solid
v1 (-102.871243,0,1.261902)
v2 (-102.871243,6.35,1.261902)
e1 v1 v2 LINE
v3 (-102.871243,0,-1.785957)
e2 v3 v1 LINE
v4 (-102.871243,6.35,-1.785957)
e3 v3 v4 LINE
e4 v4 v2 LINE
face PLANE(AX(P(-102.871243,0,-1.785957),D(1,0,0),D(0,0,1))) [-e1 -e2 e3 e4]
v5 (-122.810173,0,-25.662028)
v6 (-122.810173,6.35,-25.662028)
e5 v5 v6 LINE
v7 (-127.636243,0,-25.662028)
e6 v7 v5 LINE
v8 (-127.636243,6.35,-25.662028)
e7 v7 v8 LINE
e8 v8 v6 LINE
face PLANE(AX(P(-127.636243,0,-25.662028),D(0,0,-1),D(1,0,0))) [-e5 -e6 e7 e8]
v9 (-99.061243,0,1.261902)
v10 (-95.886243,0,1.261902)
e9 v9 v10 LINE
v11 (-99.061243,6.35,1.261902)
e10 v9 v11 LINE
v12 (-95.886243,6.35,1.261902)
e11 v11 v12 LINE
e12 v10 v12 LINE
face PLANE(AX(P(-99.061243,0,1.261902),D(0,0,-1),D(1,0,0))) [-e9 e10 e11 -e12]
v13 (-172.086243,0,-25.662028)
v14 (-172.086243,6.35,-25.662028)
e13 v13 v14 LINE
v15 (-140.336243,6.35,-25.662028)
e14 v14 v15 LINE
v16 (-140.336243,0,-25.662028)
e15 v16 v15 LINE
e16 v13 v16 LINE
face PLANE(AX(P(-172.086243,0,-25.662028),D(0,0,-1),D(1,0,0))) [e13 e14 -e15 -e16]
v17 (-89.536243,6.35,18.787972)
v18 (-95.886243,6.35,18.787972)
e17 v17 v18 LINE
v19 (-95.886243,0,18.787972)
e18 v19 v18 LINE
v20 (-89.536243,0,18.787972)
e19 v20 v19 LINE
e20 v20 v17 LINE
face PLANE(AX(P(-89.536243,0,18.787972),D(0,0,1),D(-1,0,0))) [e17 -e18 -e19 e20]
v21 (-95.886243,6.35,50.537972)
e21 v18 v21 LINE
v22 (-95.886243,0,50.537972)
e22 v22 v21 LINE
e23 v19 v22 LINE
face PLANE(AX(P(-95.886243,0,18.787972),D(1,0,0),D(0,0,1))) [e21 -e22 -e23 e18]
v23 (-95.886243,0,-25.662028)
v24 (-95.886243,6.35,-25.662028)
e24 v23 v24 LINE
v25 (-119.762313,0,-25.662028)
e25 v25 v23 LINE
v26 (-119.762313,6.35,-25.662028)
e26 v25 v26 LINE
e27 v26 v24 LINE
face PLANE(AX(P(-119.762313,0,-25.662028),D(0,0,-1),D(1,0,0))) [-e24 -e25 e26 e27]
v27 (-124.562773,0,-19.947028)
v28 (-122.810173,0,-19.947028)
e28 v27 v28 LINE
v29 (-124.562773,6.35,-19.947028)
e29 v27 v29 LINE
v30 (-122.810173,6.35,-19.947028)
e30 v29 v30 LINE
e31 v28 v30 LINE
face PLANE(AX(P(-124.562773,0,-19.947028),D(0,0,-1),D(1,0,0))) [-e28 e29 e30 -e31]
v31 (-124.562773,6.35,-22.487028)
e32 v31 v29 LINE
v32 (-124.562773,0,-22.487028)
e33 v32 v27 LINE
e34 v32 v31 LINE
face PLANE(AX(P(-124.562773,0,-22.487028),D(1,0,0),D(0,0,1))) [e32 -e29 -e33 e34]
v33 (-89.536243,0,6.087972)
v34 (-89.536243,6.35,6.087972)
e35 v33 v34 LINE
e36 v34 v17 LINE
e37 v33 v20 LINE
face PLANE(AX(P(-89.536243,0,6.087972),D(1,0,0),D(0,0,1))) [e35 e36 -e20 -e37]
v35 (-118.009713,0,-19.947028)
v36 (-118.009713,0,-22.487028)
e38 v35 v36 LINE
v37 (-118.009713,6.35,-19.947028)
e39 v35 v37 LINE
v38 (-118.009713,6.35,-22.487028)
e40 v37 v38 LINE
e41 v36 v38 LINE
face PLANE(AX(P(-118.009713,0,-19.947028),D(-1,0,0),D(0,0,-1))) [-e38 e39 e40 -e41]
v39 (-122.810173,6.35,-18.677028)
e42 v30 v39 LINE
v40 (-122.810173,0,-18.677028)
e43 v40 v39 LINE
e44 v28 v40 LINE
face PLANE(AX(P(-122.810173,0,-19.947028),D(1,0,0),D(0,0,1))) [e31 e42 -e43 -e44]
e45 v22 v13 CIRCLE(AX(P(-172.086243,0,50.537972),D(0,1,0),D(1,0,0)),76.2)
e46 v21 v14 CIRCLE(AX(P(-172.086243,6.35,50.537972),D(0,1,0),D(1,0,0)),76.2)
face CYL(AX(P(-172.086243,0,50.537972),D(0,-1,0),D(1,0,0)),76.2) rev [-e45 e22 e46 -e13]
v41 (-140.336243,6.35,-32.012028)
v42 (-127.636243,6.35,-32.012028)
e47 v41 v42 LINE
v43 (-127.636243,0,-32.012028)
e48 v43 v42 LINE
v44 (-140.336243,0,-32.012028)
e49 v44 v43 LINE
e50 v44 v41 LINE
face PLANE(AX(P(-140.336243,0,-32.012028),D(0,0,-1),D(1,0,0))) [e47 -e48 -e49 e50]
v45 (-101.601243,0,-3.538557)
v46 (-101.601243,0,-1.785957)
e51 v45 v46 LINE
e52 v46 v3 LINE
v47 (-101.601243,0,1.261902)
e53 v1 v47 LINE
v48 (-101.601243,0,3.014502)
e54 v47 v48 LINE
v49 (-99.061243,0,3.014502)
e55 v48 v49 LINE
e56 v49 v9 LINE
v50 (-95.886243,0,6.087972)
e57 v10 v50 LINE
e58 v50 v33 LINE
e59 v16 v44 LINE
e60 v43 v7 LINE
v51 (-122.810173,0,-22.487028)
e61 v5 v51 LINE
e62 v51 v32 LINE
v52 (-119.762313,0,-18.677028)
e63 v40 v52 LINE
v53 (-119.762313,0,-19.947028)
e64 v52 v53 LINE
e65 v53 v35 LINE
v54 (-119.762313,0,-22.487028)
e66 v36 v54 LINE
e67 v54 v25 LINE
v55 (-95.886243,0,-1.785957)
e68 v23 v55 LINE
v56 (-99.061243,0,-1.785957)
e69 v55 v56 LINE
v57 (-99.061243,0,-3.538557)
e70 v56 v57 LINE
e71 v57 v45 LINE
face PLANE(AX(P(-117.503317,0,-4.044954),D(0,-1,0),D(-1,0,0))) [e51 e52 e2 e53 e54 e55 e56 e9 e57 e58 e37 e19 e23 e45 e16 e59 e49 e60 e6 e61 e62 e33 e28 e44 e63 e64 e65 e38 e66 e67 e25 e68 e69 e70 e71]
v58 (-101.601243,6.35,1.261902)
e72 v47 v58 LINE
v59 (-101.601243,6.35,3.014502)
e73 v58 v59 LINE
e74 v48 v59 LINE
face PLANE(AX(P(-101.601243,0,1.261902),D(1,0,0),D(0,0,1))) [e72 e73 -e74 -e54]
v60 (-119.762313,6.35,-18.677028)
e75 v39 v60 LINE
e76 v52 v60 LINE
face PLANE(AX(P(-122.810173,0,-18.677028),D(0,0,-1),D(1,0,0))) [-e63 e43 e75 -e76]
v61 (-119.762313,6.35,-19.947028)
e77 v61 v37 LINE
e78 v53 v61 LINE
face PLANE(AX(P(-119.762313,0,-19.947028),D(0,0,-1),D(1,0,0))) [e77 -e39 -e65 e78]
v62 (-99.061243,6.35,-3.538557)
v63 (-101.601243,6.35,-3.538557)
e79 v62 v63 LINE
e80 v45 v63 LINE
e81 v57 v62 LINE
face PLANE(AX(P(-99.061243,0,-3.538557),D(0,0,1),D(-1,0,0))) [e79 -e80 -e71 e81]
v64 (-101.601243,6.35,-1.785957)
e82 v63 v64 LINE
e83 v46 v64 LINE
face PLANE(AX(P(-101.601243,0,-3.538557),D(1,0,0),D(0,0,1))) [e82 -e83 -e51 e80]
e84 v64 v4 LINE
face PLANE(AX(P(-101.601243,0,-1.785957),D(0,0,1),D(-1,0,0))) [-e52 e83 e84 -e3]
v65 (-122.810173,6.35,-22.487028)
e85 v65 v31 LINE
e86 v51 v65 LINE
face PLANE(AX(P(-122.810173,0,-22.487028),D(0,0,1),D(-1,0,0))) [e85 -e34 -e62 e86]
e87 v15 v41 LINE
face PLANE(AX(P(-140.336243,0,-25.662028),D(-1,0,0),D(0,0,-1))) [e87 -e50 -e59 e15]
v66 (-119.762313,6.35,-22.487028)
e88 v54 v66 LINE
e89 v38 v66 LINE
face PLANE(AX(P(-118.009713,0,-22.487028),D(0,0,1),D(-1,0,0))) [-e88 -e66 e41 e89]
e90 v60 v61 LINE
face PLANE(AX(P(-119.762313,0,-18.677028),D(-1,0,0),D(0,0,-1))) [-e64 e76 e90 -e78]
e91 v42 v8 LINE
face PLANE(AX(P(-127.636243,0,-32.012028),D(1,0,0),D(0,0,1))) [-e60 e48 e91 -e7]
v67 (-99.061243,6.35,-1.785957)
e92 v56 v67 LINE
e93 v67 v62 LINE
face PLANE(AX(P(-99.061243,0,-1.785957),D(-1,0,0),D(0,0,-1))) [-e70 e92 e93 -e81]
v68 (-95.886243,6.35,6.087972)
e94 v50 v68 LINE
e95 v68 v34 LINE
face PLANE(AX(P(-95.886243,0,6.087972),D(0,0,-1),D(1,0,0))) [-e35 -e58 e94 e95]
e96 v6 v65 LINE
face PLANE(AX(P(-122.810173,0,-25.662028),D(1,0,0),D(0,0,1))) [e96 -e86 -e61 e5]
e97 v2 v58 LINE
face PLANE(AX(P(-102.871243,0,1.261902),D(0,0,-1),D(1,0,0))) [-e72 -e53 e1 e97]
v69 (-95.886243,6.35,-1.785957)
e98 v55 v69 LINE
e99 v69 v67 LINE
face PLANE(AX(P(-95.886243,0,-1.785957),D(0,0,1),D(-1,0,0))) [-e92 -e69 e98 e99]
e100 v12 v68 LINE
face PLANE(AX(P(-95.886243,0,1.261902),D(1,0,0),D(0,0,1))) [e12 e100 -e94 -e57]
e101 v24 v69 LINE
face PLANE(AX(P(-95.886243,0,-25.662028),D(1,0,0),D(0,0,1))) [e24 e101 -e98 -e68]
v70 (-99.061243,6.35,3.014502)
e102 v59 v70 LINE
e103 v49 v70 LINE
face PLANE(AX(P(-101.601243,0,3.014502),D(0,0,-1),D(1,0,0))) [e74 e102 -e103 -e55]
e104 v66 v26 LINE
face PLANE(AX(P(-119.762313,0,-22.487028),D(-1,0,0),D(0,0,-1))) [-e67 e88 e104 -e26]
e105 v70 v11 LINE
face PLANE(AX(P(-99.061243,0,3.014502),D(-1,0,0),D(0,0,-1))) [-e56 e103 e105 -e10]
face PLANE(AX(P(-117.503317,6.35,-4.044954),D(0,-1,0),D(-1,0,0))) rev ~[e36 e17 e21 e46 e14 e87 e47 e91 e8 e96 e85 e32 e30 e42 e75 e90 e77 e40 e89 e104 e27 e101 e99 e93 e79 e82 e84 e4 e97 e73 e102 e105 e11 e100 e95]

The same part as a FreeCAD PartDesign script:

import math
import FreeCAD as App
import Part
import Sketcher
from FreeCAD import Vector
Q = App.Units.Quantity

doc = App.newDocument("Part")
body = doc.addObject("PartDesign::Body", "Body")

sketch1 = body.newObject("Sketcher::SketchObject", "Sketch")
sketch1.AttachmentSupport = (doc.getObject("XZ_Plane"), [""])
sketch1.MapMode = "FlatFace"
sketch1.addGeometry([
    Part.LineSegment(Vector(-140.336243, -25.662028, 0), Vector(-172.086243, -25.662028, 0)),
    Part.ArcOfCircle(Part.Circle(Vector(-172.086243, 50.537972, 0), Vector(0, 0, 1), 76.2), math.radians(-90), math.radians(0)),
    Part.LineSegment(Vector(-95.886243, 50.537972, 0), Vector(-95.886243, 18.787972, 0)),
    Part.LineSegment(Vector(-95.886243, 18.787972, 0), Vector(-89.536243, 18.787972, 0)),
    Part.LineSegment(Vector(-89.536243, 18.787972, 0), Vector(-89.536243, 6.087972, 0)),
    Part.LineSegment(Vector(-89.536243, 6.087972, 0), Vector(-95.886243, 6.087972, 0)),
    Part.LineSegment(Vector(-95.886243, 6.087972, 0), Vector(-95.886243, 1.261902, 0)),
    Part.LineSegment(Vector(-95.886243, 1.261902, 0), Vector(-99.061243, 1.261902, 0)),
    Part.LineSegment(Vector(-99.061243, 1.261902, 0), Vector(-99.061243, 3.014502, 0)),
    Part.LineSegment(Vector(-99.061243, 3.014502, 0), Vector(-101.601243, 3.014502, 0)),
    Part.LineSegment(Vector(-101.601243, 3.014502, 0), Vector(-101.601243, 1.261902, 0)),
    Part.LineSegment(Vector(-101.601243, 1.261902, 0), Vector(-102.871243, 1.261902, 0)),
    Part.LineSegment(Vector(-102.871243, 1.261902, 0), Vector(-102.871243, -1.785957, 0)),
    Part.LineSegment(Vector(-102.871243, -1.785957, 0), Vector(-101.601243, -1.785957, 0)),
    Part.LineSegment(Vector(-101.601243, -1.785957, 0), Vector(-101.601243, -3.538557, 0)),
    Part.LineSegment(Vector(-101.601243, -3.538557, 0), Vector(-99.061243, -3.538557, 0)),
    Part.LineSegment(Vector(-99.061243, -3.538557, 0), Vector(-99.061243, -1.785957, 0)),
    Part.LineSegment(Vector(-99.061243, -1.785957, 0), Vector(-95.886243, -1.785957, 0)),
    Part.LineSegment(Vector(-95.886243, -1.785957, 0), Vector(-95.886243, -25.662028, 0)),
    Part.LineSegment(Vector(-95.886243, -25.662028, 0), Vector(-119.762313, -25.662028, 0)),
    Part.LineSegment(Vector(-119.762313, -25.662028, 0), Vector(-119.762313, -22.487028, 0)),
    Part.LineSegment(Vector(-119.762313, -22.487028, 0), Vector(-118.009713, -22.487028, 0)),
    Part.LineSegment(Vector(-118.009713, -22.487028, 0), Vector(-118.009713, -19.947028, 0)),
    Part.LineSegment(Vector(-118.009713, -19.947028, 0), Vector(-119.762313, -19.947028, 0)),
    Part.LineSegment(Vector(-119.762313, -19.947028, 0), Vector(-119.762313, -18.677028, 0)),
    Part.LineSegment(Vector(-119.762313, -18.677028, 0), Vector(-122.810173, -18.677028, 0)),
    Part.LineSegment(Vector(-122.810173, -18.677028, 0), Vector(-122.810173, -19.947028, 0)),
    Part.LineSegment(Vector(-122.810173, -19.947028, 0), Vector(-124.562773, -19.947028, 0)),
    Part.LineSegment(Vector(-124.562773, -19.947028, 0), Vector(-124.562773, -22.487028, 0)),
    Part.LineSegment(Vector(-124.562773, -22.487028, 0), Vector(-122.810173, -22.487028, 0)),
    Part.LineSegment(Vector(-122.810173, -22.487028, 0), Vector(-122.810173, -25.662028, 0)),
    Part.LineSegment(Vector(-122.810173, -25.662028, 0), Vector(-127.636243, -25.662028, 0)),
    Part.LineSegment(Vector(-127.636243, -25.662028, 0), Vector(-127.636243, -32.012028, 0)),
    Part.LineSegment(Vector(-127.636243, -32.012028, 0), Vector(-140.336243, -32.012028, 0)),
    Part.LineSegment(Vector(-140.336243, -32.012028, 0), Vector(-140.336243, -25.662028, 0)),
], False)
sketch1.addConstraint([
    Sketcher.Constraint("Tangent", 0, 2, 1, 1),
    Sketcher.Constraint("Tangent", 1, 2, 2, 1),
    Sketcher.Constraint("Coincident", 2, 2, 3, 1),
    Sketcher.Constraint("Coincident", 3, 2, 4, 1),
    Sketcher.Constraint("Coincident", 4, 2, 5, 1),
    Sketcher.Constraint("Coincident", 5, 2, 6, 1),
    Sketcher.Constraint("Coincident", 6, 2, 7, 1),
    Sketcher.Constraint("Coincident", 7, 2, 8, 1),
    Sketcher.Constraint("Coincident", 8, 2, 9, 1),
    Sketcher.Constraint("Coincident", 9, 2, 10, 1),
    Sketcher.Constraint("Coincident", 10, 2, 11, 1),
    Sketcher.Constraint("Coincident", 11, 2, 12, 1),
    Sketcher.Constraint("Coincident", 12, 2, 13, 1),
    Sketcher.Constraint("Coincident", 13, 2, 14, 1),
    Sketcher.Constraint("Coincident", 14, 2, 15, 1),
    Sketcher.Constraint("Coincident", 15, 2, 16, 1),
    Sketcher.Constraint("Coincident", 16, 2, 17, 1),
    Sketcher.Constraint("Coincident", 17, 2, 18, 1),
    Sketcher.Constraint("Coincident", 18, 2, 19, 1),
    Sketcher.Constraint("Coincident", 19, 2, 20, 1),
    Sketcher.Constraint("Coincident", 20, 2, 21, 1),
    Sketcher.Constraint("Coincident", 21, 2, 22, 1),
    Sketcher.Constraint("Coincident", 22, 2, 23, 1),
    Sketcher.Constraint("Coincident", 23, 2, 24, 1),
    Sketcher.Constraint("Coincident", 24, 2, 25, 1),
    Sketcher.Constraint("Coincident", 25, 2, 26, 1),
    Sketcher.Constraint("Coincident", 26, 2, 27, 1),
    Sketcher.Constraint("Coincident", 27, 2, 28, 1),
    Sketcher.Constraint("Coincident", 28, 2, 29, 1),
    Sketcher.Constraint("Coincident", 29, 2, 30, 1),
    Sketcher.Constraint("Coincident", 30, 2, 31, 1),
    Sketcher.Constraint("Coincident", 31, 2, 32, 1),
    Sketcher.Constraint("Coincident", 32, 2, 33, 1),
    Sketcher.Constraint("Coincident", 33, 2, 34, 1),
    Sketcher.Constraint("Coincident", 34, 2, 0, 1),
    Sketcher.Constraint("Horizontal", 0),
    Sketcher.Constraint("Vertical", 2),
    Sketcher.Constraint("Horizontal", 3),
    Sketcher.Constraint("Vertical", 4),
    Sketcher.Constraint("Horizontal", 5),
    Sketcher.Constraint("Vertical", 6),
    Sketcher.Constraint("Horizontal", 7),
    Sketcher.Constraint("Vertical", 8),
    Sketcher.Constraint("Horizontal", 9),
    Sketcher.Constraint("Vertical", 10),
    Sketcher.Constraint("Horizontal", 11),
    Sketcher.Constraint("Vertical", 12),
    Sketcher.Constraint("Horizontal", 13),
    Sketcher.Constraint("Vertical", 14),
    Sketcher.Constraint("Horizontal", 15),
    Sketcher.Constraint("Vertical", 16),
    Sketcher.Constraint("Horizontal", 17),
    Sketcher.Constraint("Vertical", 18),
    Sketcher.Constraint("Horizontal", 19),
    Sketcher.Constraint("Vertical", 20),
    Sketcher.Constraint("Horizontal", 21),
    Sketcher.Constraint("Vertical", 22),
    Sketcher.Constraint("Horizontal", 23),
    Sketcher.Constraint("Vertical", 24),
    Sketcher.Constraint("Horizontal", 25),
    Sketcher.Constraint("Vertical", 26),
    Sketcher.Constraint("Horizontal", 27),
    Sketcher.Constraint("Vertical", 28),
    Sketcher.Constraint("Horizontal", 29),
    Sketcher.Constraint("Vertical", 30),
    Sketcher.Constraint("Horizontal", 31),
    Sketcher.Constraint("Vertical", 32),
    Sketcher.Constraint("Horizontal", 33),
    Sketcher.Constraint("Vertical", 34),
    Sketcher.Constraint("Horizontal", 7, 2, 10, 2),
    Sketcher.Constraint("Horizontal", 13, 2, 16, 2),
    Sketcher.Constraint("Horizontal", 0, 2, 18, 2),
    Sketcher.Constraint("Horizontal", 23, 2, 26, 2),
    Sketcher.Constraint("Horizontal", 21, 2, 28, 2),
    Sketcher.Constraint("Horizontal", 19, 2, 30, 2),
    Sketcher.Constraint("Vertical", 2, 2, 5, 2),
    Sketcher.Constraint("Vertical", 10, 2, 13, 2),
    Sketcher.Constraint("Vertical", 8, 2, 15, 2),
    Sketcher.Constraint("Vertical", 6, 2, 17, 2),
    Sketcher.Constraint("Vertical", 20, 2, 23, 2),
    Sketcher.Constraint("Vertical", 26, 2, 29, 2),
    Sketcher.Constraint("Equal", 23, 27),
    Sketcher.Constraint("Equal", 0, 2),
    Sketcher.Constraint("Equal", 33, 4),
    Sketcher.Constraint("Equal", 31, 6),
    Sketcher.Constraint("Equal", 29, 8),
    Sketcher.Constraint("Equal", 25, 12),
    Sketcher.Constraint("Equal", 10, 14),
    Sketcher.Constraint("Equal", 17, 20),
    Sketcher.Constraint("Equal", 15, 22),
    Sketcher.Constraint("Equal", 13, 24),
    Sketcher.Constraint("Equal", 5, 32),
    Sketcher.Constraint("Radius", 1, Q("3 in")),
    Sketcher.Constraint("DistanceX", 9, 2, 9, 1, Q("0.1 in")),
    Sketcher.Constraint("DistanceX", 33, 2, 33, 1, Q("0.5 in")),
    Sketcher.Constraint("DistanceX", 0, 2, 0, 1, Q("1.25 in")),
    Sketcher.Constraint("DistanceX", 3, 1, 3, 2, Q("0.25 in")),
    Sketcher.Constraint("DistanceX", 11, 2, 11, 1, Q("0.05 in")),
    Sketcher.Constraint("DistanceX", 7, 2, 7, 1, Q("0.125 in")),
    Sketcher.Constraint("DistanceX", 21, 1, 21, 2, Q("0.069 in")),
    Sketcher.Constraint("DistanceX", 19, 2, 19, 1, Q("23.87607 mm")),
    Sketcher.Constraint("DistanceX", 25, 2, 25, 1, Q("3.047859 mm")),
    Sketcher.Constraint("DistanceY", -1, 1, 6, 2, Q("1.261902 mm")),
    Sketcher.Constraint("DistanceX", 1, 3, -1, 1, Q("172.086243 mm")),
])
pad1 = body.newObject("PartDesign::Pad", "Pad")
pad1.Profile = sketch1
pad1.Length = Q("0.25 in")
pad1.Reversed = True

doc.recompute()
